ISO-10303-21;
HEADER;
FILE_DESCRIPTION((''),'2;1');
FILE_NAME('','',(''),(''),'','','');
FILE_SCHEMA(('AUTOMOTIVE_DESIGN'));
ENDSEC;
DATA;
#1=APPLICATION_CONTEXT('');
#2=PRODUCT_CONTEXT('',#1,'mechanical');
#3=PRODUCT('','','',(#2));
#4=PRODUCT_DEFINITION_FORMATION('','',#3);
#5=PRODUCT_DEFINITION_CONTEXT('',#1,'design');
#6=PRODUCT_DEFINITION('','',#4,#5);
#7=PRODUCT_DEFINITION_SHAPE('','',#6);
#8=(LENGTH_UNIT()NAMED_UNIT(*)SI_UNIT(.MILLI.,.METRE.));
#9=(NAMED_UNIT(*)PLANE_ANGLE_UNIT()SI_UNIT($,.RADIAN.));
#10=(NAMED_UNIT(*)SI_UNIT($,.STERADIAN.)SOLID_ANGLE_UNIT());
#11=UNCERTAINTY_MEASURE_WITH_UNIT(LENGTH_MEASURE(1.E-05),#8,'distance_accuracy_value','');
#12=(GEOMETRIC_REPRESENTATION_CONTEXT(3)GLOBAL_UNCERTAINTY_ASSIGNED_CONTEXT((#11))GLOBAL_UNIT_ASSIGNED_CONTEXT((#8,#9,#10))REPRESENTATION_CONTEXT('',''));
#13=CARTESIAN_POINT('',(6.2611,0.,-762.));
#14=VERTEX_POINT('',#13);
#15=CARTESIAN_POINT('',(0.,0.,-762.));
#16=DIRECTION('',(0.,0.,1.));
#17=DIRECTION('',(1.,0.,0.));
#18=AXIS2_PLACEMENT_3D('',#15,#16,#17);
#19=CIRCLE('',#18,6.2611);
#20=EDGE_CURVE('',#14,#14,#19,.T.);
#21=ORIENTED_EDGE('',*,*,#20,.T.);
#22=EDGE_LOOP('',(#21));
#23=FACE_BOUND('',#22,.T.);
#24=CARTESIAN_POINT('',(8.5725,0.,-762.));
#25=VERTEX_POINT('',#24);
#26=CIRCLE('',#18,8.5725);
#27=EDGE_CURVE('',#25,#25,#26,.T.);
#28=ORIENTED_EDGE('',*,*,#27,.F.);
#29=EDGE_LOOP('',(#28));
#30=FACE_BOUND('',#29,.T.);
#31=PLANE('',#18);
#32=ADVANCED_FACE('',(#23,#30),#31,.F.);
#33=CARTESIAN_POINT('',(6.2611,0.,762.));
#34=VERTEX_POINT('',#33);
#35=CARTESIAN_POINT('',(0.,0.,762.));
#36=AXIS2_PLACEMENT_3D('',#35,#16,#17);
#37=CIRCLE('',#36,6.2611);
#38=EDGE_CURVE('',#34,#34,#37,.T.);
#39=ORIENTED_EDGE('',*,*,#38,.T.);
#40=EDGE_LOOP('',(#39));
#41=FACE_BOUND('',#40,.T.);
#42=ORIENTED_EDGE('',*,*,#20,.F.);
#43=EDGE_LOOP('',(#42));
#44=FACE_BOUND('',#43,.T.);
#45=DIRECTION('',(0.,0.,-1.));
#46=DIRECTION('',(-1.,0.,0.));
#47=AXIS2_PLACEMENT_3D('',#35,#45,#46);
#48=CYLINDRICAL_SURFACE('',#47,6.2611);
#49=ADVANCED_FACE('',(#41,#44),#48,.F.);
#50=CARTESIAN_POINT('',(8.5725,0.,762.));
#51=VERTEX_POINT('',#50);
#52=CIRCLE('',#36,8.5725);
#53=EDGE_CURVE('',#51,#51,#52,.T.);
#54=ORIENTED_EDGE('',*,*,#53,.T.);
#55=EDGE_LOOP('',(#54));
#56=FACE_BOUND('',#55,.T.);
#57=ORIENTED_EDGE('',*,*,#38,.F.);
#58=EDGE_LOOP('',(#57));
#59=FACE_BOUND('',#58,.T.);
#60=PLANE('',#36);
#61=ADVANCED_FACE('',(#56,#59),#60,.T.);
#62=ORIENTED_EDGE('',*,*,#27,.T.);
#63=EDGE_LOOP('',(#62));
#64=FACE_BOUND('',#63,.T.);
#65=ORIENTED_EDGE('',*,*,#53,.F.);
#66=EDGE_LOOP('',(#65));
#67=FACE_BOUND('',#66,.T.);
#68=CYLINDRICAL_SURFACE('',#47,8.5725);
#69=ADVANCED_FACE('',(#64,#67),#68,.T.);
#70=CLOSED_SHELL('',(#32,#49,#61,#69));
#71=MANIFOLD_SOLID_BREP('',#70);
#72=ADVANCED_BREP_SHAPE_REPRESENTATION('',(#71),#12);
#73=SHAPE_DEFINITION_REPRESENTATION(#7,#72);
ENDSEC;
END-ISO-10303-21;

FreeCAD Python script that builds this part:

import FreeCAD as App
import Part
import Sketcher
Q = App.Units.Quantity

doc = App.newDocument("Part")
body = doc.addObject("PartDesign::Body", "Body")

sketch1 = body.newObject("Sketcher::SketchObject", "Sketch")
sketch1.AttachmentSupport = (doc.getObject("XY_Plane"), [""])
sketch1.MapMode = "FlatFace"
sketch1.addGeometry(Part.Circle(App.Vector(0, 0, 0), App.Vector(0, 0, 1), 8.5725), False)
sketch1.addGeometry(Part.Circle(App.Vector(0, 0, 0), App.Vector(0, 0, 1), 6.2611), False)
sketch1.addConstraint(Sketcher.Constraint("Coincident", 0, 3, -1, 1))
sketch1.addConstraint(Sketcher.Constraint("Coincident", 1, 3, -1, 1))
sketch1.addConstraint(Sketcher.Constraint("Diameter", 0, Q("0.675 in")))
sketch1.addConstraint(Sketcher.Constraint("Diameter", 1, Q("0.493 in")))
pad1 = body.newObject("PartDesign::Pad", "Pad")
pad1.Profile = sketch1
pad1.Length = Q("60 in")
pad1.Midplane = True

doc.recompute()
